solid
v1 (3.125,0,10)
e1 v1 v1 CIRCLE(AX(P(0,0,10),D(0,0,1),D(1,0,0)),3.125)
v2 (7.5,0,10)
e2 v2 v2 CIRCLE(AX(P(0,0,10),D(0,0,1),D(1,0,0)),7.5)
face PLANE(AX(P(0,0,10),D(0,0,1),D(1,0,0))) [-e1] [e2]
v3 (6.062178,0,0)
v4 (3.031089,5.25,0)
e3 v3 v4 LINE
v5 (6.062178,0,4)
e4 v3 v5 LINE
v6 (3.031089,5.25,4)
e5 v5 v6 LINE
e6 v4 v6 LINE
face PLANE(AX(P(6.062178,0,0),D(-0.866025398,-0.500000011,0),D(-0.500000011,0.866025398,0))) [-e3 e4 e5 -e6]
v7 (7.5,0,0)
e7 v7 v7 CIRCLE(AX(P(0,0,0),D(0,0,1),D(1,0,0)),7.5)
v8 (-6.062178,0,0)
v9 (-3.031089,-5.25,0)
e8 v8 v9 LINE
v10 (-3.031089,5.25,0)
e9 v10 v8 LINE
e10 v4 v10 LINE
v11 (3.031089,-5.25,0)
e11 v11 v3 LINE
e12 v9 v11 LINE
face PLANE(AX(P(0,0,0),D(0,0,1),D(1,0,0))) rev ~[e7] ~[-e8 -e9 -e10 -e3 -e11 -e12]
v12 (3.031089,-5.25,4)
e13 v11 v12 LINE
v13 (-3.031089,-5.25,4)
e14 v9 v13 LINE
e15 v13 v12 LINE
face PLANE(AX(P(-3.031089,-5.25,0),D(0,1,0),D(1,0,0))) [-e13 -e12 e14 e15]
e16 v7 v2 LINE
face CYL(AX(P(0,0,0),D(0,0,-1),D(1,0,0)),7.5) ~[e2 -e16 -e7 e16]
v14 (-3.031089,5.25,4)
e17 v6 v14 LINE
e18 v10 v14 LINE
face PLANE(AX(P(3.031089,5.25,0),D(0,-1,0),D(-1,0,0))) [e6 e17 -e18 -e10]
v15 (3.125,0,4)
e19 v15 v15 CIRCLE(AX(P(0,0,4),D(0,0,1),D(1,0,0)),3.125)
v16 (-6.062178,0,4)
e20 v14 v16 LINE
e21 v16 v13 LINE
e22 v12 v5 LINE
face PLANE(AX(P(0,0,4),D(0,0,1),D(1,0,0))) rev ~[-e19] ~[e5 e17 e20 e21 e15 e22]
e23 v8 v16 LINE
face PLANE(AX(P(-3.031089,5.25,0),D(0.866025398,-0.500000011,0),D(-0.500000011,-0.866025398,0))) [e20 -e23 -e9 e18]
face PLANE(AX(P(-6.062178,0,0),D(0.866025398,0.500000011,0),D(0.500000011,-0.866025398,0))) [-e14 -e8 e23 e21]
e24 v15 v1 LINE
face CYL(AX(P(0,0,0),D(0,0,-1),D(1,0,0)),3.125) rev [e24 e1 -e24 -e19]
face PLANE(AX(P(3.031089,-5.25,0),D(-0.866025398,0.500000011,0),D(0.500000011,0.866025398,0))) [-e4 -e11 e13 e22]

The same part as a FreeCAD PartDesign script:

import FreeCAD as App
import Part
import Sketcher
Q = App.Units.Quantity

doc = App.newDocument("Part")
body = doc.addObject("PartDesign::Body", "Body")

# Sketch on XY plane
sketch1 = body.newObject("Sketcher::SketchObject", "Sketch")
sketch1.AttachmentSupport = (doc.getObject("XY_Plane"), [""])
sketch1.MapMode = "FlatFace"
sketch1.addGeometry([
    Part.Circle(App.Vector(0, 0, 0), App.Vector(0, 0, 1), 7.5),
    Part.Circle(App.Vector(0, 0, 0), App.Vector(0, 0, 1), 3.125),
], False)
sketch1.addConstraint([
    Sketcher.Constraint("Coincident", 0, 3, -1, 1),
    Sketcher.Constraint("Coincident", 1, 3, -1, 1),
    Sketcher.Constraint("Diameter", 0, 15.0),
    Sketcher.Constraint("Diameter", 1, 6.25),
])
pad1 = body.newObject("PartDesign::Pad", "Pad")
pad1.Profile = sketch1
pad1.Length = 10

# Sketch on XY plane
sketch2 = body.newObject("Sketcher::SketchObject", "Sketch001")
sketch2.AttachmentSupport = (doc.getObject("XY_Plane"), [""])
sketch2.MapMode = "FlatFace"
sketch2.addGeometry([
    Part.LineSegment(App.Vector(3.031089, -5.25, 0), App.Vector(6.062178, 0, 0)),  # 0
    Part.LineSegment(App.Vector(6.062178, 0, 0), App.Vector(3.031089, 5.25, 0)),  # 1
    Part.LineSegment(App.Vector(3.031089, 5.25, 0), App.Vector(-3.031089, 5.25, 0)),  # 2
    Part.LineSegment(App.Vector(-3.031089, 5.25, 0), App.Vector(-6.062178, 0, 0)),  # 3
    Part.LineSegment(App.Vector(-6.062178, 0, 0), App.Vector(-3.031089, -5.25, 0)),  # 4
    Part.LineSegment(App.Vector(-3.031089, -5.25, 0), App.Vector(3.031089, -5.25, 0)),  # 5
    Part.Circle(App.Vector(0, 0, 0), App.Vector(0, 0, 1), 3.125),  # 6
], False)
sketch2.addConstraint([
    Sketcher.Constraint("Coincident", 0, 2, 1, 1),
    Sketcher.Constraint("Coincident", 1, 2, 2, 1),
    Sketcher.Constraint("Coincident", 2, 2, 3, 1),
    Sketcher.Constraint("Coincident", 3, 2, 4, 1),
    Sketcher.Constraint("Coincident", 4, 2, 5, 1),
    Sketcher.Constraint("Coincident", 5, 2, 0, 1),
    Sketcher.Constraint("Horizontal", 2),
    Sketcher.Constraint("Horizontal", 5),
    Sketcher.Constraint("Coincident", 6, 3, -1, 1),
    Sketcher.Constraint("Symmetric", 0, 2, 3, 2, -1, 1),
    Sketcher.Constraint("Symmetric", 1, 2, 4, 2, -1, 1),
    Sketcher.Constraint("PointOnObject", 0, 2, -1),
    Sketcher.Constraint("Parallel", 0, 3),
    Sketcher.Constraint("Vertical", 2, 2, 4, 2),
    Sketcher.Constraint("Diameter", 6, 6.25),
    Sketcher.Constraint("Angle", 0, Q("59.999999 deg")),
    Sketcher.Constraint("DistanceY", 4, 2, 2, 2, 10.5),
    Sketcher.Constraint("DistanceX", 2, 2, 2, 1, 6.062178),
])
pocket1 = body.newObject("PartDesign::Pocket", "Pocket")
pocket1.Profile = sketch2
pocket1.Length = 4
pocket1.Reversed = True

doc.recompute()
